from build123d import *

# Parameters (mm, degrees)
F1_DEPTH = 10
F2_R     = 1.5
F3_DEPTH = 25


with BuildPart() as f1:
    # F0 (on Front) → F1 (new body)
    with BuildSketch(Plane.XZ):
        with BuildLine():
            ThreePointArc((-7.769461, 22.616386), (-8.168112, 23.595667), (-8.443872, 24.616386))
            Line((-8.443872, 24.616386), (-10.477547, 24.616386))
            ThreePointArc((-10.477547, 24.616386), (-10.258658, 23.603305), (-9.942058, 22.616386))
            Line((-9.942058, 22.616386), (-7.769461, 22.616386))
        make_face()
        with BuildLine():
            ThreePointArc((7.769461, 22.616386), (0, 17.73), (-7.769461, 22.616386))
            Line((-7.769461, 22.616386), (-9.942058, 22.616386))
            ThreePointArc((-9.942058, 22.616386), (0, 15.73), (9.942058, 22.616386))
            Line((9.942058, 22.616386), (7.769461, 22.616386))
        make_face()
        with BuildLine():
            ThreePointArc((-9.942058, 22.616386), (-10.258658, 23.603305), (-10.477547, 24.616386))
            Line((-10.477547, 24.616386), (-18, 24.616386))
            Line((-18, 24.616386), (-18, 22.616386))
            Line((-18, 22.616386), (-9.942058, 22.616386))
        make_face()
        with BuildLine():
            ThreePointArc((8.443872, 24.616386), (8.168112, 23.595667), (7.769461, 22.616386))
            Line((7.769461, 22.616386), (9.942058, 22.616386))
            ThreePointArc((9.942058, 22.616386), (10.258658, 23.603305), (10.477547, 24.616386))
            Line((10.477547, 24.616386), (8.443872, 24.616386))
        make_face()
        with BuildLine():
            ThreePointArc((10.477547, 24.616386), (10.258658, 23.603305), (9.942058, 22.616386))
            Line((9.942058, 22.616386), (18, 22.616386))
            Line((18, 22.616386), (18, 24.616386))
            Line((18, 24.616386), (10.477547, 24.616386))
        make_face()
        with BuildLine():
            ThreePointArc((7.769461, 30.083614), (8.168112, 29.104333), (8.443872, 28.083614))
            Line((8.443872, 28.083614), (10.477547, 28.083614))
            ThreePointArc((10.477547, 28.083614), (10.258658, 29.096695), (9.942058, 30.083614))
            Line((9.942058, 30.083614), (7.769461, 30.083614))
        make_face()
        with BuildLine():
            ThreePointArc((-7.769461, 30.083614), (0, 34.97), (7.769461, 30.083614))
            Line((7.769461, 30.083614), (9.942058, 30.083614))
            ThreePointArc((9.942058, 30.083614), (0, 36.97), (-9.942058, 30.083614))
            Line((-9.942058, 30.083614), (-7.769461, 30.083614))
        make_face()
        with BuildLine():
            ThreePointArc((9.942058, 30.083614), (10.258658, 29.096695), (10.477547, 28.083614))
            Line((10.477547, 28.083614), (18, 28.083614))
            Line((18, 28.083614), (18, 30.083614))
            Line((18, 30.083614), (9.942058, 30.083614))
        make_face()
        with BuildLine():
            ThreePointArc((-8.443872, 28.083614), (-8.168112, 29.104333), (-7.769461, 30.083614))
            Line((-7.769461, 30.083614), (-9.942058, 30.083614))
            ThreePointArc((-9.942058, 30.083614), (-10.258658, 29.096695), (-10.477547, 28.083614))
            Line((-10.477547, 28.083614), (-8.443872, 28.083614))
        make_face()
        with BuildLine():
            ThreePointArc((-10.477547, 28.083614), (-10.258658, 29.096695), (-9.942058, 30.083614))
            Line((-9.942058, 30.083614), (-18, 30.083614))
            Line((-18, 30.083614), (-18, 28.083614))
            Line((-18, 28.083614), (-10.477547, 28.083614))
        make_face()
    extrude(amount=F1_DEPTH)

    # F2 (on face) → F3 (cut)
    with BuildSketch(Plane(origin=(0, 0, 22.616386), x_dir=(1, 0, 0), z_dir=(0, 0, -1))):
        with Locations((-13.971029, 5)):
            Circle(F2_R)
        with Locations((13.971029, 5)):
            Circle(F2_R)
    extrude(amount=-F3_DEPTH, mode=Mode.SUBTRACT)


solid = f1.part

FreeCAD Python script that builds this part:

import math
import FreeCAD as App
import Part
import Sketcher

V = App.Vector

doc = App.newDocument("Part")
body = doc.addObject("PartDesign::Body", "Body")
body.AllowCompound = True

# Sketch on XZ plane
sketch1 = body.newObject("Sketcher::SketchObject", "Sketch")
sketch1.AttachmentSupport = (doc.getObject("XZ_Plane"), [""])
sketch1.MapMode = "FlatFace"
sketch1.addGeometry([
    Part.ArcOfCircle(Part.Circle(V(-0.000066, 26.349976, 0), V(0, 0, 1), 8.61993), math.radians(-168.397879), math.radians(-154.333343)),  # 0
    Part.LineSegment(V(-8.443872, 24.616386, 0), V(-18, 24.616386, 0)),  # 1
    Part.LineSegment(V(-18, 24.616386, 0), V(-18, 22.616386, 0)),  # 2
    Part.LineSegment(V(-18, 22.616386, 0), V(-9.942058, 22.616386, 0)),  # 3
    Part.ArcOfCircle(Part.Circle(V(0, 26.349999, 0), V(0, 0, 1), 10.619999), math.radians(-159.416971), math.radians(-20.583029)),  # 4
    Part.LineSegment(V(9.942058, 22.616386, 0), V(18, 22.616386, 0)),  # 5
    Part.LineSegment(V(18, 22.616386, 0), V(18, 24.616386, 0)),  # 6
    Part.LineSegment(V(18, 24.616386, 0), V(8.443872, 24.616386, 0)),  # 7
    Part.ArcOfCircle(Part.Circle(V(0.000066, 26.349976, 0), V(0, 0, 1), 8.61993), math.radians(-25.666657), math.radians(-11.602121)),  # 8
    Part.ArcOfCircle(Part.Circle(V(0, 26.35, 0), V(0, 0, 1), 8.62), math.radians(-154.333392), math.radians(-25.666608)),  # 9
    Part.ArcOfCircle(Part.Circle(V(0.000066, 26.350024, 0), V(0, 0, 1), 8.61993), math.radians(11.602121), math.radians(25.666657)),  # 10
    Part.LineSegment(V(8.443872, 28.083614, 0), V(18, 28.083614, 0)),  # 11
    Part.LineSegment(V(18, 28.083614, 0), V(18, 30.083614, 0)),  # 12
    Part.LineSegment(V(18, 30.083614, 0), V(9.942058, 30.083614, 0)),  # 13
    Part.ArcOfCircle(Part.Circle(V(0, 26.350001, 0), V(0, 0, 1), 10.619999), math.radians(20.583029), math.radians(159.416971)),  # 14
    Part.LineSegment(V(-9.942058, 30.083614, 0), V(-18, 30.083614, 0)),  # 15
    Part.LineSegment(V(-18, 30.083614, 0), V(-18, 28.083614, 0)),  # 16
    Part.LineSegment(V(-18, 28.083614, 0), V(-8.443872, 28.083614, 0)),  # 17
    Part.ArcOfCircle(Part.Circle(V(-0.000066, 26.350024, 0), V(0, 0, 1), 8.61993), math.radians(154.333343), math.radians(168.397879)),  # 18
    Part.ArcOfCircle(Part.Circle(V(0, 26.35, 0), V(0, 0, 1), 8.62), math.radians(25.666608), math.radians(154.333392)),  # 19
], False)
sketch1.addConstraint([
    Sketcher.Constraint("Coincident", 0, 1, 1, 1),
    Sketcher.Constraint("Coincident", 1, 2, 2, 1),
    Sketcher.Constraint("Coincident", 2, 2, 3, 1),
    Sketcher.Constraint("Coincident", 3, 2, 4, 1),
    Sketcher.Constraint("Coincident", 4, 2, 5, 1),
    Sketcher.Constraint("Coincident", 5, 2, 6, 1),
    Sketcher.Constraint("Coincident", 6, 2, 7, 1),
    Sketcher.Constraint("Coincident", 7, 2, 8, 2),
    Sketcher.Constraint("Tangent", 8, 1, 9, 2),
    Sketcher.Constraint("Tangent", 9, 1, 0, 2),
    Sketcher.Constraint("Coincident", 10, 1, 11, 1),
    Sketcher.Constraint("Coincident", 11, 2, 12, 1),
    Sketcher.Constraint("Coincident", 12, 2, 13, 1),
    Sketcher.Constraint("Coincident", 13, 2, 14, 1),
    Sketcher.Constraint("Coincident", 14, 2, 15, 1),
    Sketcher.Constraint("Coincident", 15, 2, 16, 1),
    Sketcher.Constraint("Coincident", 16, 2, 17, 1),
    Sketcher.Constraint("Coincident", 17, 2, 18, 2),
    Sketcher.Constraint("Tangent", 18, 1, 19, 2),
    Sketcher.Constraint("Tangent", 19, 1, 10, 2),
    Sketcher.Constraint("Horizontal", 1),
    Sketcher.Constraint("Vertical", 2),
    Sketcher.Constraint("Horizontal", 3),
    Sketcher.Constraint("Horizontal", 5),
    Sketcher.Constraint("Vertical", 6),
    Sketcher.Constraint("Horizontal", 7),
    Sketcher.Constraint("Horizontal", 11),
    Sketcher.Constraint("Vertical", 12),
    Sketcher.Constraint("Horizontal", 13),
    Sketcher.Constraint("Horizontal", 15),
    Sketcher.Constraint("Vertical", 16),
    Sketcher.Constraint("Horizontal", 17),
    Sketcher.Constraint("Coincident", 9, 3, 4, 3),
    Sketcher.Constraint("Coincident", 14, 3, 4, 3),
    Sketcher.Constraint("Coincident", 19, 3, 4, 3),
    Sketcher.Constraint("Equal", 0, 8),
    Sketcher.Constraint("Equal", 8, 10),
    Sketcher.Constraint("Equal", 4, 14),
    Sketcher.Constraint("Equal", 10, 18),
    Sketcher.Constraint("Equal", 9, 19),
    Sketcher.Constraint("Symmetric", 3, 2, 4, 2, -2),
    Sketcher.Constraint("Symmetric", 1, 2, 6, 2, -2),
    Sketcher.Constraint("Symmetric", 12, 2, 15, 2, -2),
    Sketcher.Constraint("Horizontal", 5, 2, 8, 1),
    Sketcher.Constraint("Horizontal", 8, 1, 9, 1),
    Sketcher.Constraint("Horizontal", 11, 2, 16, 2),
    Sketcher.Constraint("Horizontal", 15, 2, 18, 1),
    Sketcher.Constraint("Horizontal", 18, 1, 19, 1),
    Sketcher.Constraint("Vertical", 7, 2, 10, 1),
    Sketcher.Constraint("Vertical", 6, 2, 11, 2),
    Sketcher.Constraint("Vertical", 4, 2, 13, 2),
    Sketcher.Constraint("DistanceY", 2, 2, 2, 1, 2.0),
    Sketcher.Constraint("Radius", 4, 10.619999),
    Sketcher.Constraint("Radius", 9, 8.62),
    Sketcher.Constraint("DistanceX", 1, 2, -1, 1, 18.0),
    Sketcher.Constraint("DistanceY", -1, 1, 4, 3, 26.349999),
    Sketcher.Constraint("Radius", 0, 8.61993),
    Sketcher.Constraint("DistanceX", 1, 2, 1, 1, 9.556128),
])
pad1 = body.newObject("PartDesign::Pad", "Pad")
pad1.Profile = sketch1
pad1.Length = 10

# Sketch on XY plane
sketch2 = body.newObject("Sketcher::SketchObject", "Sketch001")
sketch2.AttachmentSupport = (doc.getObject("XY_Plane"), [""])
sketch2.MapMode = "FlatFace"
sketch2.AttachmentOffset = App.Placement(V(0, 0, 22.616386), App.Rotation())
sketch2.addGeometry([
    Part.Circle(V(-13.971029, -5, 0), V(0, 0, 1), 1.5),
    Part.Circle(V(13.971029, -5, 0), V(0, 0, 1), 1.5),
], False)
sketch2.addConstraint([
    Sketcher.Constraint("Equal", 0, 1),
    Sketcher.Constraint("Symmetric", 0, 3, 1, 3, -2),
    Sketcher.Constraint("Diameter", 0, 3.0),
    Sketcher.Constraint("DistanceY", 0, 3, -1, 1, 5.0),
    Sketcher.Constraint("DistanceX", 0, 3, -1, 1, 13.971029),
])
pocket1 = body.newObject("PartDesign::Pocket", "Pocket")
pocket1.Profile = sketch2
pocket1.Length = 25
pocket1.Reversed = True

doc.recompute()
